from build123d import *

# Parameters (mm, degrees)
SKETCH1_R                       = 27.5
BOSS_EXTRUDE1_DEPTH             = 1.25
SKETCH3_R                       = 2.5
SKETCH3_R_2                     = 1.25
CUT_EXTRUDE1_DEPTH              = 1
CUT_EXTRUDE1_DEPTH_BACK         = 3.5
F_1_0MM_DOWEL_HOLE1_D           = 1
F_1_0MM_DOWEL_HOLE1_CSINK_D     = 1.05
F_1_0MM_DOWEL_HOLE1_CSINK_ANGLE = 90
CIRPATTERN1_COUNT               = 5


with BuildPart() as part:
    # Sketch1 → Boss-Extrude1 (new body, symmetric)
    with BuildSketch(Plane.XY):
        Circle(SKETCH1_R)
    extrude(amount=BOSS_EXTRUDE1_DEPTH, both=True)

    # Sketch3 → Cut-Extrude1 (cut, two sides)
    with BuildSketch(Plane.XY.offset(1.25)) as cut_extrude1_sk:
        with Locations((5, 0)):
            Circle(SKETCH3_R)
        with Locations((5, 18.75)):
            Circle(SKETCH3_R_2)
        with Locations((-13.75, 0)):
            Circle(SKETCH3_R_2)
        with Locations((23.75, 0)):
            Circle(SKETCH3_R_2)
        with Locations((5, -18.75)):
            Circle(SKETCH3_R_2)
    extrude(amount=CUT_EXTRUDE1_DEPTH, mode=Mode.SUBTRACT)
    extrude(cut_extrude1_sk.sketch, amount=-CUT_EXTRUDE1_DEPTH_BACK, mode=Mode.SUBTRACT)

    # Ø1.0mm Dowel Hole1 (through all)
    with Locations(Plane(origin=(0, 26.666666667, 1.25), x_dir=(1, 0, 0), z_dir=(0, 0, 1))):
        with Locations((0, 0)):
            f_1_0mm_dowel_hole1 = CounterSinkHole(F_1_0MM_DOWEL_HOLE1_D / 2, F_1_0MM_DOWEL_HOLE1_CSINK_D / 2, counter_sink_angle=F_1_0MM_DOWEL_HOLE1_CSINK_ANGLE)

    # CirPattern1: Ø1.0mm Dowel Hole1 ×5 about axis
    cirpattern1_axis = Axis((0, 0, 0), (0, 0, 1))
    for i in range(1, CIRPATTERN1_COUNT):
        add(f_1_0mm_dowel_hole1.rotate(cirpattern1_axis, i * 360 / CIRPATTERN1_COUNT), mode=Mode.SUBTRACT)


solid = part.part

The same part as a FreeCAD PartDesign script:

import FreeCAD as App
import Part
import Sketcher

doc = App.newDocument("Part")
params = doc.addObject("Spreadsheet::Sheet", "Params")
for row, (alias, value) in enumerate([
    ("sketch1_diameter", "55 mm"),
    ("pad1_length", "2.5 mm"),
    ("sketch2_diameter", "5 mm"),
    ("sketch2_diameter2", "2.5 mm"),
    ("sketch3_diameter", "1 mm"),
    ("hole_diameter", "1 mm"),
    ("hole_csink_diameter", "1.05 mm"),
], start=1):
    params.set(f"A{row}", alias)
    params.set(f"B{row}", "=" + value)
    params.setAlias(f"B{row}", alias)

body = doc.addObject("PartDesign::Body", "Body")

# Sketch on XY plane
sketch1 = body.newObject("Sketcher::SketchObject", "Sketch")
sketch1.AttachmentSupport = (doc.getObject("XY_Plane"), [""])
sketch1.MapMode = "FlatFace"
sketch1.addGeometry(Part.Circle(App.Vector(0, 0, 0), App.Vector(0, 0, 1), 28), False)
sketch1.addConstraint(Sketcher.Constraint("Coincident", 0, 3, -1, 1))
sketch1.addConstraint(Sketcher.Constraint("Diameter", 0, 55.0))
sketch1.setExpression("Constraints[1]", "Params.sketch1_diameter")
pad1 = body.newObject("PartDesign::Pad", "Pad")
pad1.Profile = sketch1
pad1.setExpression("Length", "Params.pad1_length")
pad1.Midplane = True

# Sketch on XY plane
sketch2 = body.newObject("Sketcher::SketchObject", "Sketch001")
sketch2.AttachmentSupport = (doc.getObject("XY_Plane"), [""])
sketch2.MapMode = "FlatFace"
sketch2.AttachmentOffset = App.Placement(App.Vector(0, 0, 1.25), App.Rotation())
sketch2.addGeometry(Part.Circle(App.Vector(5, 0, 0), App.Vector(0, 0, 1), 2.5), False)
sketch2.addGeometry(Part.Circle(App.Vector(5, 18.8, 0), App.Vector(0, 0, 1), 1.2), False)
sketch2.addGeometry(Part.Circle(App.Vector(-13.8, 0, 0), App.Vector(0, 0, 1), 1.2), False)
sketch2.addGeometry(Part.Circle(App.Vector(23.8, 0, 0), App.Vector(0, 0, 1), 1.2), False)
sketch2.addGeometry(Part.Circle(App.Vector(5, -18.8, 0), App.Vector(0, 0, 1), 1.2), False)
sketch2.addConstraint(Sketcher.Constraint("Equal", 1, 2))
sketch2.addConstraint(Sketcher.Constraint("Equal", 2, 3))
sketch2.addConstraint(Sketcher.Constraint("Equal", 3, 4))
sketch2.addConstraint(Sketcher.Constraint("Symmetric", 1, 3, 4, 3, -1))
sketch2.addConstraint(Sketcher.Constraint("PointOnObject", 0, 3, -1))
sketch2.addConstraint(Sketcher.Constraint("PointOnObject", 2, 3, -1))
sketch2.addConstraint(Sketcher.Constraint("PointOnObject", 3, 3, -1))
sketch2.addConstraint(Sketcher.Constraint("Vertical", 0, 3, 1, 3))
sketch2.addConstraint(Sketcher.Constraint("Diameter", 0, 5.0))
sketch2.addConstraint(Sketcher.Constraint("Diameter", 1, 2.5))
sketch2.addConstraint(Sketcher.Constraint("DistanceX", -1, 1, 0, 3, 5.0))
sketch2.addConstraint(Sketcher.Constraint("DistanceX", 2, 3, 3, 3, 37.5))
sketch2.addConstraint(Sketcher.Constraint("DistanceY", 4, 3, 1, 3, 37.5))
sketch2.addConstraint(Sketcher.Constraint("DistanceX", 2, 3, -1, 1, 13.75))
sketch2.setExpression("Constraints[8]", "Params.sketch2_diameter")
sketch2.setExpression("Constraints[9]", "Params.sketch2_diameter2")
pocket1 = body.newObject("PartDesign::Pocket", "Pocket")
pocket1.Profile = sketch2
pocket1.Type = "ThroughAll"
pocket1.Midplane = True

# Sketch on XY plane
sketch3 = body.newObject("Sketcher::SketchObject", "Sketch002")
sketch3.AttachmentSupport = (doc.getObject("XY_Plane"), [""])
sketch3.MapMode = "FlatFace"
sketch3.AttachmentOffset = App.Placement(App.Vector(0, 0, 1.25), App.Rotation())
sketch3.addGeometry(Part.Circle(App.Vector(0, 26.7, 0), App.Vector(0, 0, 1), 0.5), False)
sketch3.addConstraint(Sketcher.Constraint("PointOnObject", 0, 3, -2))
sketch3.addConstraint(Sketcher.Constraint("Diameter", 0, 1.0))
sketch3.addConstraint(Sketcher.Constraint("DistanceY", -1, 1, 0, 3, 26.666667))
sketch3.setExpression("Constraints[1]", "Params.sketch3_diameter")
doc.recompute()
hole = body.newObject("PartDesign::Hole", "Hole")
hole.Profile = sketch3
hole.ThreadType = "None"
hole.setExpression("Diameter", "Params.hole_diameter")
hole.DepthType = "ThroughAll"
hole.HoleCutType = "Countersink"
hole.setExpression("HoleCutDiameter", "Params.hole_csink_diameter")
hole.HoleCutCountersinkAngle = 90
doc.recompute()

polarpattern = body.newObject("PartDesign::PolarPattern", "PolarPattern")
polarpattern.Originals = [hole]
polarpattern.Axis = (doc.getObject("Z_Axis"), [""])
polarpattern.Angle = 360
polarpattern.Occurrences = 5
body.Tip = polarpattern

doc.recompute()
